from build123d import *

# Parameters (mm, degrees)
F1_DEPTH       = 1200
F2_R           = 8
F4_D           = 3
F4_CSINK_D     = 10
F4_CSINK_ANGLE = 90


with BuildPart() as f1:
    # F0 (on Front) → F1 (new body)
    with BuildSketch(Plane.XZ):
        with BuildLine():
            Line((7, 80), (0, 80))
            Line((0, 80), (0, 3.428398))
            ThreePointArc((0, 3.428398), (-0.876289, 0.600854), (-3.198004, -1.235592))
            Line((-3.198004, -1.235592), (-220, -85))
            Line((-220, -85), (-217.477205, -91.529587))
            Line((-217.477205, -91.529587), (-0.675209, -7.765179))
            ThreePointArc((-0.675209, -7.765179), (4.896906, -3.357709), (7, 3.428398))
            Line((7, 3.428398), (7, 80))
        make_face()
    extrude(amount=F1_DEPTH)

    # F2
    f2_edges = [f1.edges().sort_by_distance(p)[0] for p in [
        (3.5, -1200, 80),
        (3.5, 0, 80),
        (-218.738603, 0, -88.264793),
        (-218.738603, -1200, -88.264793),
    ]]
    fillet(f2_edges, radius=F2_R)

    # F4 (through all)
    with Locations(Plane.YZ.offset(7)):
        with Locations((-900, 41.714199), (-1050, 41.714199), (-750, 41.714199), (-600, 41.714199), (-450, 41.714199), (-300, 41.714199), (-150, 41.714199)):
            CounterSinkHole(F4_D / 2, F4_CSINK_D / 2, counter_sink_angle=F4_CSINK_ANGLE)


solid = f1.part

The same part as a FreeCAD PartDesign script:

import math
import FreeCAD as App
import Part
import Sketcher
Q = App.Units.Quantity


def edges_at(feature, points):
    """Names of the edges that pass closest to the given points."""
    edges = feature.Shape.Edges
    near = lambda p: min(range(len(edges)), key=lambda i: edges[i].distToShape(Part.Vertex(*p))[0])
    return sorted({f"Edge{near(p) + 1}" for p in points})

doc = App.newDocument("Part")
body = doc.addObject("PartDesign::Body", "Body")

sketch1 = doc.addObject("Sketcher::SketchObject", "Sketch")
body.addObject(sketch1)
sketch1.AttachmentSupport = (doc.XZ_Plane, [""])
sketch1.MapMode = "FlatFace"
sketch1.addGeometry(Part.LineSegment(App.Vector(7, 80, 0), App.Vector(0, 80, 0)), False)
sketch1.addGeometry(Part.LineSegment(App.Vector(0, 80, 0), App.Vector(0, 3.4, 0)), False)
sketch1.addGeometry(Part.ArcOfCircle(Part.Circle(App.Vector(-5, 3.4, 0), App.Vector(0, 0, 1), 5), math.radians(-69), math.radians(0)), False)
sketch1.addGeometry(Part.LineSegment(App.Vector(-3.2, -1.2, 0), App.Vector(-220, -85, 0)), False)
sketch1.addGeometry(Part.LineSegment(App.Vector(-220, -85, 0), App.Vector(-217.5, -91.5, 0)), False)
sketch1.addGeometry(Part.LineSegment(App.Vector(-217.5, -91.5, 0), App.Vector(-0.7, -7.8, 0)), False)
sketch1.addGeometry(Part.ArcOfCircle(Part.Circle(App.Vector(-5, 3.4, 0), App.Vector(0, 0, 1), 12), math.radians(-69), math.radians(0)), False)
sketch1.addGeometry(Part.LineSegment(App.Vector(7, 3.4, 0), App.Vector(7, 80, 0)), False)
sketch1.addConstraint(Sketcher.Constraint("Coincident", 0, 2, 1, 1))
sketch1.addConstraint(Sketcher.Constraint("Tangent", 1, 2, 2, 2))
sketch1.addConstraint(Sketcher.Constraint("Tangent", 2, 1, 3, 1))
sketch1.addConstraint(Sketcher.Constraint("Coincident", 3, 2, 4, 1))
sketch1.addConstraint(Sketcher.Constraint("Coincident", 4, 2, 5, 1))
sketch1.addConstraint(Sketcher.Constraint("Tangent", 5, 2, 6, 1))
sketch1.addConstraint(Sketcher.Constraint("Tangent", 6, 2, 7, 1))
sketch1.addConstraint(Sketcher.Constraint("Coincident", 7, 2, 0, 1))
sketch1.addConstraint(Sketcher.Constraint("Horizontal", 0))
sketch1.addConstraint(Sketcher.Constraint("Vertical", 1))
sketch1.addConstraint(Sketcher.Constraint("Vertical", 7))
sketch1.addConstraint(Sketcher.Constraint("Coincident", 6, 3, 2, 3))
sketch1.addConstraint(Sketcher.Constraint("PointOnObject", 0, 2, -2))
sketch1.addConstraint(Sketcher.Constraint("Perpendicular", 3, 4))
sketch1.addConstraint(Sketcher.Constraint("Perpendicular", 4, 5))
sketch1.addConstraint(Sketcher.Constraint("Radius", 2, Q("4.999999 mm")))
sketch1.addConstraint(Sketcher.Constraint("Radius", 6, Q("11.999999 mm")))
sketch1.addConstraint(Sketcher.Constraint("DistanceY", -1, 1, 0, 2, Q("80 mm")))
sketch1.addConstraint(Sketcher.Constraint("DistanceX", 3, 2, -1, 1, Q("220 mm")))
sketch1.addConstraint(Sketcher.Constraint("DistanceY", 3, 2, -1, 1, Q("85 mm")))
sketch1.addConstraint(Sketcher.Constraint("DistanceY", 1, 2, 1, 1, Q("76.571602 mm")))
pad1 = doc.addObject("PartDesign::Pad", "Pad")
body.addObject(pad1)
pad1.Profile = sketch1
pad1.Length = 1200
doc.recompute()

fillet = doc.addObject("PartDesign::Fillet", "Fillet")
body.addObject(fillet)
fillet.Base = (pad1, edges_at(pad1, [
    (3.5, -1200, 80),
    (3.5, 0, 80),
    (-218.739, 0, -88.265),
    (-218.739, -1200, -88.265),
]))
fillet.Radius = 8

sketch2 = doc.addObject("Sketcher::SketchObject", "Sketch001")
body.addObject(sketch2)
sketch2.AttachmentSupport = (doc.YZ_Plane, [""])
sketch2.MapMode = "FlatFace"
sketch2.AttachmentOffset = App.Placement(App.Vector(0, 0, 7), App.Rotation())
sketch2.addGeometry(Part.Circle(App.Vector(-900, 41.7, 0), App.Vector(0, 0, 1), 1.5), False)
sketch2.addGeometry(Part.Circle(App.Vector(-1050, 41.7, 0), App.Vector(0, 0, 1), 1.5), False)
sketch2.addGeometry(Part.Circle(App.Vector(-750, 41.7, 0), App.Vector(0, 0, 1), 1.5), False)
sketch2.addGeometry(Part.Circle(App.Vector(-600, 41.7, 0), App.Vector(0, 0, 1), 1.5), False)
sketch2.addGeometry(Part.Circle(App.Vector(-450, 41.7, 0), App.Vector(0, 0, 1), 1.5), False)
sketch2.addGeometry(Part.Circle(App.Vector(-300, 41.7, 0), App.Vector(0, 0, 1), 1.5), False)
sketch2.addGeometry(Part.Circle(App.Vector(-150, 41.7, 0), App.Vector(0, 0, 1), 1.5), False)
sketch2.addConstraint(Sketcher.Constraint("Equal", 0, 1))
sketch2.addConstraint(Sketcher.Constraint("Equal", 1, 2))
sketch2.addConstraint(Sketcher.Constraint("Equal", 2, 3))
sketch2.addConstraint(Sketcher.Constraint("Equal", 3, 4))
sketch2.addConstraint(Sketcher.Constraint("Equal", 4, 5))
sketch2.addConstraint(Sketcher.Constraint("Equal", 5, 6))
sketch2.addConstraint(Sketcher.Constraint("Horizontal", 0, 3, 1, 3))
sketch2.addConstraint(Sketcher.Constraint("Horizontal", 1, 3, 2, 3))
sketch2.addConstraint(Sketcher.Constraint("Horizontal", 2, 3, 3, 3))
sketch2.addConstraint(Sketcher.Constraint("Horizontal", 3, 3, 4, 3))
sketch2.addConstraint(Sketcher.Constraint("Horizontal", 4, 3, 5, 3))
sketch2.addConstraint(Sketcher.Constraint("Horizontal", 5, 3, 6, 3))
sketch2.addConstraint(Sketcher.Constraint("Diameter", 0, Q("3 mm")))
sketch2.addConstraint(Sketcher.Constraint("DistanceX", 0, 3, -1, 1, Q("900 mm")))
sketch2.addConstraint(Sketcher.Constraint("DistanceX", 1, 3, -1, 1, Q("1050 mm")))
sketch2.addConstraint(Sketcher.Constraint("DistanceX", 2, 3, -1, 1, Q("750 mm")))
sketch2.addConstraint(Sketcher.Constraint("DistanceX", 3, 3, -1, 1, Q("600 mm")))
sketch2.addConstraint(Sketcher.Constraint("DistanceX", 4, 3, -1, 1, Q("450 mm")))
sketch2.addConstraint(Sketcher.Constraint("DistanceX", 5, 3, -1, 1, Q("300 mm")))
sketch2.addConstraint(Sketcher.Constraint("DistanceX", 6, 3, -1, 1, Q("150 mm")))
sketch2.addConstraint(Sketcher.Constraint("DistanceY", -1, 1, 0, 3, Q("41.714199 mm")))
doc.recompute()
hole = doc.addObject("PartDesign::Hole", "Hole")
body.addObject(hole)
hole.Profile = sketch2
hole.ThreadType = "None"
hole.Diameter = 3
hole.DepthType = "ThroughAll"
hole.HoleCutType = "Countersink"
hole.HoleCutDiameter = 10
hole.HoleCutCountersinkAngle = 90

doc.recompute()
